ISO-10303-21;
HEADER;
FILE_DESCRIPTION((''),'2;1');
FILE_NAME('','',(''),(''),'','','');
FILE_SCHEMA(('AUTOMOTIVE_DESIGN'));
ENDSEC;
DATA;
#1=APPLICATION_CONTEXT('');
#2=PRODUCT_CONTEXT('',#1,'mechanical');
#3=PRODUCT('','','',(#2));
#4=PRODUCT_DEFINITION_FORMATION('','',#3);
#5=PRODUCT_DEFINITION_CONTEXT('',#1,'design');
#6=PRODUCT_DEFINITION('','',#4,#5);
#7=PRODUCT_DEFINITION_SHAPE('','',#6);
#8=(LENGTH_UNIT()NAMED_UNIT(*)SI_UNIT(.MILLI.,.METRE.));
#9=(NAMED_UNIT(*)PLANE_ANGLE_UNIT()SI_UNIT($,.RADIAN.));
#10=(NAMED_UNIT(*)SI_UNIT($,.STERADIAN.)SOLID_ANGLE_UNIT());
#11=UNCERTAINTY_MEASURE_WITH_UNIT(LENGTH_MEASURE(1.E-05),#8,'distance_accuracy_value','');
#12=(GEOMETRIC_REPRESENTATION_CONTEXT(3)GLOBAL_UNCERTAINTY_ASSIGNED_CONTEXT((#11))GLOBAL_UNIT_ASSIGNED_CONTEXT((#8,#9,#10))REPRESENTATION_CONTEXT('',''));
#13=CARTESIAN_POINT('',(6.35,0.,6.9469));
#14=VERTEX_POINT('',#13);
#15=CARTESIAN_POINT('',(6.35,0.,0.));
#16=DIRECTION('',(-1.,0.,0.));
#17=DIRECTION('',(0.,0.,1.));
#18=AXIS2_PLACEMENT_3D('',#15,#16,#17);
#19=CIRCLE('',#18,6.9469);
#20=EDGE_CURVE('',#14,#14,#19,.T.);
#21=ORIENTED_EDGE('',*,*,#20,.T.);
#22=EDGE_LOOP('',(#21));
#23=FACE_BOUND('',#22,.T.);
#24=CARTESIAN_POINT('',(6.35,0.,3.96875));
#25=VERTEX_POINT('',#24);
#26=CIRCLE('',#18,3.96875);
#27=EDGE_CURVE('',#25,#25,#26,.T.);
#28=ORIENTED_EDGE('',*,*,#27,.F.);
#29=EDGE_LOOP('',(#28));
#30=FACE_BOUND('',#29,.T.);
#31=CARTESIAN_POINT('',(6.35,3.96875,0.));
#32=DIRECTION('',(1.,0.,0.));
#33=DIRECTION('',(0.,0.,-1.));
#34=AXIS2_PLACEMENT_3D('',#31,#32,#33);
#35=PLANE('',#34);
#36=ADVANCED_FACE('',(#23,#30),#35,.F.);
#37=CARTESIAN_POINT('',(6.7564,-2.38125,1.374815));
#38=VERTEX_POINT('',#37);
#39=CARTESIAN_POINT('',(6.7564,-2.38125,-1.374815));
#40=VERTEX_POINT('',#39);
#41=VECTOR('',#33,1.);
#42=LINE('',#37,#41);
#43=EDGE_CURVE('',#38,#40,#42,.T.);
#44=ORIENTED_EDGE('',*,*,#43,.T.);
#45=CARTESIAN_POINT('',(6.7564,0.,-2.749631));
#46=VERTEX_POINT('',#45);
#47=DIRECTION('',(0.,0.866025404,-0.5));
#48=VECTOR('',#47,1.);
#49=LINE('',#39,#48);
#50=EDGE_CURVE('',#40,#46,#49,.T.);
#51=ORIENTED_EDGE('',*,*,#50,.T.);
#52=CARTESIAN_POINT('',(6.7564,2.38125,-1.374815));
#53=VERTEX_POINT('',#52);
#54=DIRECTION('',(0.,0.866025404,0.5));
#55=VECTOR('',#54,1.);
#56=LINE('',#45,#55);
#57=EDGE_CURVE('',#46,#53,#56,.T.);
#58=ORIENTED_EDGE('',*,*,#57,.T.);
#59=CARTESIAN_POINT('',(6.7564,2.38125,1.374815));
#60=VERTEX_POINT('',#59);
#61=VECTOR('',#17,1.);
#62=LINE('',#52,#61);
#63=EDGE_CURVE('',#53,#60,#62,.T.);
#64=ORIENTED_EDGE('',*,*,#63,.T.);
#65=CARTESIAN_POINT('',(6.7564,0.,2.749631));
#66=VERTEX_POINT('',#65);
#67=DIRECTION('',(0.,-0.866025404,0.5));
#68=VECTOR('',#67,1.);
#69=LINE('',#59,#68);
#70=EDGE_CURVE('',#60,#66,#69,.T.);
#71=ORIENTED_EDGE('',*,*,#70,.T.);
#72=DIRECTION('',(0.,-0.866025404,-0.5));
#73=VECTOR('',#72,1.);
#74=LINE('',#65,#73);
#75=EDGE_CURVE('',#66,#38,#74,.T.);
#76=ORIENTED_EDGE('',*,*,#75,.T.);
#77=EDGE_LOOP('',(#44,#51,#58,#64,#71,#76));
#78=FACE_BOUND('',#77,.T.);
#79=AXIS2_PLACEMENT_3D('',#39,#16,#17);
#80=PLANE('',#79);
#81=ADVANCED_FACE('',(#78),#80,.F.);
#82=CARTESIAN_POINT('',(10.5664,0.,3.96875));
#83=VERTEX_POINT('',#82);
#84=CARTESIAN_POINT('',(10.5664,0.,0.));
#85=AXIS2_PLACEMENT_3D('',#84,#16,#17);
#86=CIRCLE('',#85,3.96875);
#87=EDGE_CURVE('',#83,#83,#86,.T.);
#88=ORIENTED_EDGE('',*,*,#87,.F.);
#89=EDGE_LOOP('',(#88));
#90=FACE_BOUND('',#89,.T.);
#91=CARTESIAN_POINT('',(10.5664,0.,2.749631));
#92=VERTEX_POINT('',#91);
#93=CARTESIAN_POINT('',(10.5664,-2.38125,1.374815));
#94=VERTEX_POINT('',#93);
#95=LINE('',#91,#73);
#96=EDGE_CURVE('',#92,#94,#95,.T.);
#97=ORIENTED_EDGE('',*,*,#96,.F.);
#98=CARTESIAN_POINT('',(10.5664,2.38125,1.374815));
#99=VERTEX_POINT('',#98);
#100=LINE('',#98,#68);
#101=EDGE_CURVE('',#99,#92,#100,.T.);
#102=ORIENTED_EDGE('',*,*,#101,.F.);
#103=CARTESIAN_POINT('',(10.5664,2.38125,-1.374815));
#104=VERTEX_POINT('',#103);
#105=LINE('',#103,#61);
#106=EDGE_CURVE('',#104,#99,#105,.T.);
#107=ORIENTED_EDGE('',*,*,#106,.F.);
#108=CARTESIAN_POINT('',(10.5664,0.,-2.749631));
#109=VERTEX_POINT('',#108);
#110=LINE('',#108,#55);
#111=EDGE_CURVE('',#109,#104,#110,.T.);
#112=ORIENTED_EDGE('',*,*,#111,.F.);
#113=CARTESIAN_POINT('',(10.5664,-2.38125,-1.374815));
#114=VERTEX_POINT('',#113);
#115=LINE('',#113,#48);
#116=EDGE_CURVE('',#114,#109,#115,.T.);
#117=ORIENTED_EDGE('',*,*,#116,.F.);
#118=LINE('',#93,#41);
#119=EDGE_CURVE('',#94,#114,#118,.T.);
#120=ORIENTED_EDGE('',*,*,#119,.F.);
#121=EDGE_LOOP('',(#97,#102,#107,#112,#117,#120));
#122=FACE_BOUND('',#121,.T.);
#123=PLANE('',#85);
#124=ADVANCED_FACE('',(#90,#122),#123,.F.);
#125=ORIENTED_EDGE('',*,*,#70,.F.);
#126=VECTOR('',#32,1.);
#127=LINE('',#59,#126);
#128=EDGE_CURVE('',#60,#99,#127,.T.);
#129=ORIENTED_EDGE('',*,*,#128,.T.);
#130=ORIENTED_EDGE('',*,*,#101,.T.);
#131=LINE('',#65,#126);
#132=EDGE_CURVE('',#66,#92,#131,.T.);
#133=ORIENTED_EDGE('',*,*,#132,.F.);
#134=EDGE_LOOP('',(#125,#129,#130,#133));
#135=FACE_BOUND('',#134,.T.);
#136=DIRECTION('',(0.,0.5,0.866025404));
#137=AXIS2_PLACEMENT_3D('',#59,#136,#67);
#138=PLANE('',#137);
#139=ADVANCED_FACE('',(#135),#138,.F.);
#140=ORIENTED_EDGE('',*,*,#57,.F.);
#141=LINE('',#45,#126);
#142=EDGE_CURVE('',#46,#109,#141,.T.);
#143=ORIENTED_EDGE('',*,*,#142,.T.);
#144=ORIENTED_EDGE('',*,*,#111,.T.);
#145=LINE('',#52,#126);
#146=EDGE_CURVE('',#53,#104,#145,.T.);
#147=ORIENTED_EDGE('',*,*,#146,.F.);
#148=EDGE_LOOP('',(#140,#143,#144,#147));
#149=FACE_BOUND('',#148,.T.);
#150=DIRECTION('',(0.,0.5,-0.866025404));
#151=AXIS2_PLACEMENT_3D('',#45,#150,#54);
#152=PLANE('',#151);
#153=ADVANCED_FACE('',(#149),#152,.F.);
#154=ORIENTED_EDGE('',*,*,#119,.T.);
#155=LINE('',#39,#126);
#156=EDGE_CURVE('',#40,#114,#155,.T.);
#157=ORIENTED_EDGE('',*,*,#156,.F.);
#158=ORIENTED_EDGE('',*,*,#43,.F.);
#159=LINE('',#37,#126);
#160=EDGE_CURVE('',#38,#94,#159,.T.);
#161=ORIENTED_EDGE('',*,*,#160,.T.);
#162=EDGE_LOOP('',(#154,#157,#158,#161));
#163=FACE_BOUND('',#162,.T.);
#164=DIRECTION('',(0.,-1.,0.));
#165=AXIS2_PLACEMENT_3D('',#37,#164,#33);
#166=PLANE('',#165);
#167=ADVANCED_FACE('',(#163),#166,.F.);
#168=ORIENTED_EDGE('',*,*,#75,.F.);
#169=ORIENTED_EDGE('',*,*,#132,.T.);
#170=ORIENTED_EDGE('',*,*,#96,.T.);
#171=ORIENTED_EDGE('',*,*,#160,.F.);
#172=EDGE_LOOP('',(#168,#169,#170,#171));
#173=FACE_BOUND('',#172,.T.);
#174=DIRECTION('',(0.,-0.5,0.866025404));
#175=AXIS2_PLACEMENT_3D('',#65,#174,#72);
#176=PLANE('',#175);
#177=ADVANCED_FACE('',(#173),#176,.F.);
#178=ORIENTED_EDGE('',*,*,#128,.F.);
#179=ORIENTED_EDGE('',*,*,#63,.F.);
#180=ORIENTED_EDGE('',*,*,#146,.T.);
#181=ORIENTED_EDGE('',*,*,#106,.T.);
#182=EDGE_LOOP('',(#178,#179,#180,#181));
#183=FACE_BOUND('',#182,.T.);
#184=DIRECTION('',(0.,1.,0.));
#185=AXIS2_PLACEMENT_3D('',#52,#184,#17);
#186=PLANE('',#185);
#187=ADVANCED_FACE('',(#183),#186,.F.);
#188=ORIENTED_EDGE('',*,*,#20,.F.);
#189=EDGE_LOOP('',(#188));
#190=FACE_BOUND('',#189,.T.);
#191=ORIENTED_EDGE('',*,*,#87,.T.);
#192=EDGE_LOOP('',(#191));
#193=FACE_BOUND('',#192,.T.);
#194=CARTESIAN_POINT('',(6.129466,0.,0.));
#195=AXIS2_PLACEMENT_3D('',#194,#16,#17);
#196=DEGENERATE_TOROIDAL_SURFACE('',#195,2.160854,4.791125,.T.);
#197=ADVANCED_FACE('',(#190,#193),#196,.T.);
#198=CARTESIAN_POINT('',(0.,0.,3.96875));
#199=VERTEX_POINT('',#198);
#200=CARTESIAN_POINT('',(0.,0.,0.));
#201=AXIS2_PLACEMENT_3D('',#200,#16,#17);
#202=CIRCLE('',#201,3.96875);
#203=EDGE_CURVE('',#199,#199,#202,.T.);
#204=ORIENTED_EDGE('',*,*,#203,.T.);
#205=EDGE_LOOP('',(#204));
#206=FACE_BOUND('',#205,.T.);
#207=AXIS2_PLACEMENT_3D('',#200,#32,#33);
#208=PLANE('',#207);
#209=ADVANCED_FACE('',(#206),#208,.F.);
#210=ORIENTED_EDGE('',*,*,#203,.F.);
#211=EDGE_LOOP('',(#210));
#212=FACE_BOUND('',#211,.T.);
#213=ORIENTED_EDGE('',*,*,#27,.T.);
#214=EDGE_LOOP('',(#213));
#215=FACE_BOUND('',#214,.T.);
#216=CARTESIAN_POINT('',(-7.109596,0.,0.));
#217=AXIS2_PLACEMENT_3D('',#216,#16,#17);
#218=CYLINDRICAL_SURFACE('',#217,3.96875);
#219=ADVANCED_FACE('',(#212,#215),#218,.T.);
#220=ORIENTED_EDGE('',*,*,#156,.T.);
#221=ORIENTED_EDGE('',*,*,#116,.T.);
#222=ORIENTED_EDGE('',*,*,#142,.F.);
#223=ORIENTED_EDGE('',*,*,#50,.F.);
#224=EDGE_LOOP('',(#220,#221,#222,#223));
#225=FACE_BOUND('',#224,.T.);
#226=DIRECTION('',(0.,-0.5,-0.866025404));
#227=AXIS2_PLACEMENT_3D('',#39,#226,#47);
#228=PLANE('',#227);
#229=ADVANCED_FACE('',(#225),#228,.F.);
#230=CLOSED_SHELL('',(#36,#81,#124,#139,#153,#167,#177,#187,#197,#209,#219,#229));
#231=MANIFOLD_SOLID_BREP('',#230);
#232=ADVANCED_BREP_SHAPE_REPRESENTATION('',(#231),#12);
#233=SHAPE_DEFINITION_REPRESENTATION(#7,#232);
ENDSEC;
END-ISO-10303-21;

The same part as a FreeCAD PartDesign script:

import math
import FreeCAD as App
import Part
import Sketcher
Q = App.Units.Quantity


def add_polygon(sketch, points):
    """Adds a closed chain of lines whose ends are joined by coincident constraints."""
    first, n = sketch.GeometryCount, len(points)
    for a, b in zip(points, points[1:] + points[:1]):
        sketch.addGeometry(Part.LineSegment(App.Vector(*a, 0), App.Vector(*b, 0)), False)
    for i in range(n):
        sketch.addConstraint(Sketcher.Constraint("Coincident", first + i, 2, first + (i + 1) % n, 1))

doc = App.newDocument("Part")
body = doc.addObject("PartDesign::Body", "Body")

# Sketch on XY plane
sketch1 = body.newObject("Sketcher::SketchObject", "Sketch")
sketch1.AttachmentSupport = (doc.getObject("XY_Plane"), [""])
sketch1.MapMode = "FlatFace"
sketch1.addGeometry(Part.LineSegment(App.Vector(0, 4, 0), App.Vector(0, 0, 0)), False)
sketch1.addGeometry(Part.LineSegment(App.Vector(0, 0, 0), App.Vector(10.6, 0, 0)), False)
sketch1.addGeometry(Part.LineSegment(App.Vector(10.6, 0, 0), App.Vector(10.6, 4, 0)), False)
sketch1.addGeometry(Part.ArcOfCircle(Part.Circle(App.Vector(6.1, 2.2, 0), App.Vector(0, 0, 1), 4.8), math.radians(22), math.radians(87)), False)
sketch1.addGeometry(Part.LineSegment(App.Vector(6.3, 6.9, 0), App.Vector(6.3, 4, 0)), False)
sketch1.addGeometry(Part.LineSegment(App.Vector(6.3, 4, 0), App.Vector(0, 4, 0)), False)
sketch1.addConstraint(Sketcher.Constraint("Coincident", 0, 2, 1, 1))
sketch1.addConstraint(Sketcher.Constraint("Coincident", 1, 2, 2, 1))
sketch1.addConstraint(Sketcher.Constraint("Coincident", 2, 2, 3, 1))
sketch1.addConstraint(Sketcher.Constraint("Coincident", 3, 2, 4, 1))
sketch1.addConstraint(Sketcher.Constraint("Coincident", 4, 2, 5, 1))
sketch1.addConstraint(Sketcher.Constraint("Coincident", 5, 2, 0, 1))
sketch1.addConstraint(Sketcher.Constraint("Vertical", 0))
sketch1.addConstraint(Sketcher.Constraint("Horizontal", 1))
sketch1.addConstraint(Sketcher.Constraint("Vertical", 2))
sketch1.addConstraint(Sketcher.Constraint("Vertical", 4))
sketch1.addConstraint(Sketcher.Constraint("Horizontal", 5))
sketch1.addConstraint(Sketcher.Constraint("Coincident", 0, 2, -1, 1))
sketch1.addConstraint(Sketcher.Constraint("Horizontal", 2, 2, 4, 2))
sketch1.addConstraint(Sketcher.Constraint("DistanceX", 5, 2, 5, 1, Q("0.25 in")))
sketch1.addConstraint(Sketcher.Constraint("DistanceX", 1, 1, 1, 2, Q("0.416 in")))
sketch1.addConstraint(Sketcher.Constraint("DistanceY", 0, 2, 0, 1, Q("0.15625 in")))
sketch1.addConstraint(Sketcher.Constraint("DistanceY", -1, 1, 3, 2, Q("0.2735 in")))
sketch1.addConstraint(Sketcher.Constraint("Radius", 3, Q("4.791125 mm")))
revolution = body.newObject("PartDesign::Revolution", "Revolution")
revolution.Profile = sketch1
revolution.ReferenceAxis = (sketch1, ["H_Axis"])
revolution.Angle = 360

# Sketch on YZ plane
sketch2 = body.newObject("Sketcher::SketchObject", "Sketch001")
sketch2.AttachmentSupport = (doc.getObject("YZ_Plane"), [""])
sketch2.MapMode = "FlatFace"
sketch2.AttachmentOffset = App.Placement(App.Vector(0, 0, 0.416 * 25.4), App.Rotation())
add_polygon(sketch2, [(0, -2.7), (2.4, -1.4), (2.4, 1.4), (0, 2.7), (-2.4, 1.4), (-2.4, -1.4)])  # lines 0-5
sketch2.addConstraint(Sketcher.Constraint("Vertical", 1))
sketch2.addConstraint(Sketcher.Constraint("Vertical", 4))
sketch2.addConstraint(Sketcher.Constraint("Symmetric", 0, 2, 3, 2, -1, 1))
sketch2.addConstraint(Sketcher.Constraint("Symmetric", 2, 2, 5, 2, -1, 1))
sketch2.addConstraint(Sketcher.Constraint("PointOnObject", 2, 2, -2))
sketch2.addConstraint(Sketcher.Constraint("Parallel", 2, 5))
sketch2.addConstraint(Sketcher.Constraint("Horizontal", 1, 2, 3, 2))
sketch2.addConstraint(Sketcher.Constraint("Angle", 0, Q("30 deg")))
sketch2.addConstraint(Sketcher.Constraint("DistanceX", -1, 1, 0, 2, Q("0.09375 in")))
sketch2.addConstraint(Sketcher.Constraint("DistanceY", 1, 1, 1, 2, Q("2.749631 mm")))
pocket1 = body.newObject("PartDesign::Pocket", "Pocket")
pocket1.Profile = sketch2
pocket1.Length = Q("0.15 in")

doc.recompute()
